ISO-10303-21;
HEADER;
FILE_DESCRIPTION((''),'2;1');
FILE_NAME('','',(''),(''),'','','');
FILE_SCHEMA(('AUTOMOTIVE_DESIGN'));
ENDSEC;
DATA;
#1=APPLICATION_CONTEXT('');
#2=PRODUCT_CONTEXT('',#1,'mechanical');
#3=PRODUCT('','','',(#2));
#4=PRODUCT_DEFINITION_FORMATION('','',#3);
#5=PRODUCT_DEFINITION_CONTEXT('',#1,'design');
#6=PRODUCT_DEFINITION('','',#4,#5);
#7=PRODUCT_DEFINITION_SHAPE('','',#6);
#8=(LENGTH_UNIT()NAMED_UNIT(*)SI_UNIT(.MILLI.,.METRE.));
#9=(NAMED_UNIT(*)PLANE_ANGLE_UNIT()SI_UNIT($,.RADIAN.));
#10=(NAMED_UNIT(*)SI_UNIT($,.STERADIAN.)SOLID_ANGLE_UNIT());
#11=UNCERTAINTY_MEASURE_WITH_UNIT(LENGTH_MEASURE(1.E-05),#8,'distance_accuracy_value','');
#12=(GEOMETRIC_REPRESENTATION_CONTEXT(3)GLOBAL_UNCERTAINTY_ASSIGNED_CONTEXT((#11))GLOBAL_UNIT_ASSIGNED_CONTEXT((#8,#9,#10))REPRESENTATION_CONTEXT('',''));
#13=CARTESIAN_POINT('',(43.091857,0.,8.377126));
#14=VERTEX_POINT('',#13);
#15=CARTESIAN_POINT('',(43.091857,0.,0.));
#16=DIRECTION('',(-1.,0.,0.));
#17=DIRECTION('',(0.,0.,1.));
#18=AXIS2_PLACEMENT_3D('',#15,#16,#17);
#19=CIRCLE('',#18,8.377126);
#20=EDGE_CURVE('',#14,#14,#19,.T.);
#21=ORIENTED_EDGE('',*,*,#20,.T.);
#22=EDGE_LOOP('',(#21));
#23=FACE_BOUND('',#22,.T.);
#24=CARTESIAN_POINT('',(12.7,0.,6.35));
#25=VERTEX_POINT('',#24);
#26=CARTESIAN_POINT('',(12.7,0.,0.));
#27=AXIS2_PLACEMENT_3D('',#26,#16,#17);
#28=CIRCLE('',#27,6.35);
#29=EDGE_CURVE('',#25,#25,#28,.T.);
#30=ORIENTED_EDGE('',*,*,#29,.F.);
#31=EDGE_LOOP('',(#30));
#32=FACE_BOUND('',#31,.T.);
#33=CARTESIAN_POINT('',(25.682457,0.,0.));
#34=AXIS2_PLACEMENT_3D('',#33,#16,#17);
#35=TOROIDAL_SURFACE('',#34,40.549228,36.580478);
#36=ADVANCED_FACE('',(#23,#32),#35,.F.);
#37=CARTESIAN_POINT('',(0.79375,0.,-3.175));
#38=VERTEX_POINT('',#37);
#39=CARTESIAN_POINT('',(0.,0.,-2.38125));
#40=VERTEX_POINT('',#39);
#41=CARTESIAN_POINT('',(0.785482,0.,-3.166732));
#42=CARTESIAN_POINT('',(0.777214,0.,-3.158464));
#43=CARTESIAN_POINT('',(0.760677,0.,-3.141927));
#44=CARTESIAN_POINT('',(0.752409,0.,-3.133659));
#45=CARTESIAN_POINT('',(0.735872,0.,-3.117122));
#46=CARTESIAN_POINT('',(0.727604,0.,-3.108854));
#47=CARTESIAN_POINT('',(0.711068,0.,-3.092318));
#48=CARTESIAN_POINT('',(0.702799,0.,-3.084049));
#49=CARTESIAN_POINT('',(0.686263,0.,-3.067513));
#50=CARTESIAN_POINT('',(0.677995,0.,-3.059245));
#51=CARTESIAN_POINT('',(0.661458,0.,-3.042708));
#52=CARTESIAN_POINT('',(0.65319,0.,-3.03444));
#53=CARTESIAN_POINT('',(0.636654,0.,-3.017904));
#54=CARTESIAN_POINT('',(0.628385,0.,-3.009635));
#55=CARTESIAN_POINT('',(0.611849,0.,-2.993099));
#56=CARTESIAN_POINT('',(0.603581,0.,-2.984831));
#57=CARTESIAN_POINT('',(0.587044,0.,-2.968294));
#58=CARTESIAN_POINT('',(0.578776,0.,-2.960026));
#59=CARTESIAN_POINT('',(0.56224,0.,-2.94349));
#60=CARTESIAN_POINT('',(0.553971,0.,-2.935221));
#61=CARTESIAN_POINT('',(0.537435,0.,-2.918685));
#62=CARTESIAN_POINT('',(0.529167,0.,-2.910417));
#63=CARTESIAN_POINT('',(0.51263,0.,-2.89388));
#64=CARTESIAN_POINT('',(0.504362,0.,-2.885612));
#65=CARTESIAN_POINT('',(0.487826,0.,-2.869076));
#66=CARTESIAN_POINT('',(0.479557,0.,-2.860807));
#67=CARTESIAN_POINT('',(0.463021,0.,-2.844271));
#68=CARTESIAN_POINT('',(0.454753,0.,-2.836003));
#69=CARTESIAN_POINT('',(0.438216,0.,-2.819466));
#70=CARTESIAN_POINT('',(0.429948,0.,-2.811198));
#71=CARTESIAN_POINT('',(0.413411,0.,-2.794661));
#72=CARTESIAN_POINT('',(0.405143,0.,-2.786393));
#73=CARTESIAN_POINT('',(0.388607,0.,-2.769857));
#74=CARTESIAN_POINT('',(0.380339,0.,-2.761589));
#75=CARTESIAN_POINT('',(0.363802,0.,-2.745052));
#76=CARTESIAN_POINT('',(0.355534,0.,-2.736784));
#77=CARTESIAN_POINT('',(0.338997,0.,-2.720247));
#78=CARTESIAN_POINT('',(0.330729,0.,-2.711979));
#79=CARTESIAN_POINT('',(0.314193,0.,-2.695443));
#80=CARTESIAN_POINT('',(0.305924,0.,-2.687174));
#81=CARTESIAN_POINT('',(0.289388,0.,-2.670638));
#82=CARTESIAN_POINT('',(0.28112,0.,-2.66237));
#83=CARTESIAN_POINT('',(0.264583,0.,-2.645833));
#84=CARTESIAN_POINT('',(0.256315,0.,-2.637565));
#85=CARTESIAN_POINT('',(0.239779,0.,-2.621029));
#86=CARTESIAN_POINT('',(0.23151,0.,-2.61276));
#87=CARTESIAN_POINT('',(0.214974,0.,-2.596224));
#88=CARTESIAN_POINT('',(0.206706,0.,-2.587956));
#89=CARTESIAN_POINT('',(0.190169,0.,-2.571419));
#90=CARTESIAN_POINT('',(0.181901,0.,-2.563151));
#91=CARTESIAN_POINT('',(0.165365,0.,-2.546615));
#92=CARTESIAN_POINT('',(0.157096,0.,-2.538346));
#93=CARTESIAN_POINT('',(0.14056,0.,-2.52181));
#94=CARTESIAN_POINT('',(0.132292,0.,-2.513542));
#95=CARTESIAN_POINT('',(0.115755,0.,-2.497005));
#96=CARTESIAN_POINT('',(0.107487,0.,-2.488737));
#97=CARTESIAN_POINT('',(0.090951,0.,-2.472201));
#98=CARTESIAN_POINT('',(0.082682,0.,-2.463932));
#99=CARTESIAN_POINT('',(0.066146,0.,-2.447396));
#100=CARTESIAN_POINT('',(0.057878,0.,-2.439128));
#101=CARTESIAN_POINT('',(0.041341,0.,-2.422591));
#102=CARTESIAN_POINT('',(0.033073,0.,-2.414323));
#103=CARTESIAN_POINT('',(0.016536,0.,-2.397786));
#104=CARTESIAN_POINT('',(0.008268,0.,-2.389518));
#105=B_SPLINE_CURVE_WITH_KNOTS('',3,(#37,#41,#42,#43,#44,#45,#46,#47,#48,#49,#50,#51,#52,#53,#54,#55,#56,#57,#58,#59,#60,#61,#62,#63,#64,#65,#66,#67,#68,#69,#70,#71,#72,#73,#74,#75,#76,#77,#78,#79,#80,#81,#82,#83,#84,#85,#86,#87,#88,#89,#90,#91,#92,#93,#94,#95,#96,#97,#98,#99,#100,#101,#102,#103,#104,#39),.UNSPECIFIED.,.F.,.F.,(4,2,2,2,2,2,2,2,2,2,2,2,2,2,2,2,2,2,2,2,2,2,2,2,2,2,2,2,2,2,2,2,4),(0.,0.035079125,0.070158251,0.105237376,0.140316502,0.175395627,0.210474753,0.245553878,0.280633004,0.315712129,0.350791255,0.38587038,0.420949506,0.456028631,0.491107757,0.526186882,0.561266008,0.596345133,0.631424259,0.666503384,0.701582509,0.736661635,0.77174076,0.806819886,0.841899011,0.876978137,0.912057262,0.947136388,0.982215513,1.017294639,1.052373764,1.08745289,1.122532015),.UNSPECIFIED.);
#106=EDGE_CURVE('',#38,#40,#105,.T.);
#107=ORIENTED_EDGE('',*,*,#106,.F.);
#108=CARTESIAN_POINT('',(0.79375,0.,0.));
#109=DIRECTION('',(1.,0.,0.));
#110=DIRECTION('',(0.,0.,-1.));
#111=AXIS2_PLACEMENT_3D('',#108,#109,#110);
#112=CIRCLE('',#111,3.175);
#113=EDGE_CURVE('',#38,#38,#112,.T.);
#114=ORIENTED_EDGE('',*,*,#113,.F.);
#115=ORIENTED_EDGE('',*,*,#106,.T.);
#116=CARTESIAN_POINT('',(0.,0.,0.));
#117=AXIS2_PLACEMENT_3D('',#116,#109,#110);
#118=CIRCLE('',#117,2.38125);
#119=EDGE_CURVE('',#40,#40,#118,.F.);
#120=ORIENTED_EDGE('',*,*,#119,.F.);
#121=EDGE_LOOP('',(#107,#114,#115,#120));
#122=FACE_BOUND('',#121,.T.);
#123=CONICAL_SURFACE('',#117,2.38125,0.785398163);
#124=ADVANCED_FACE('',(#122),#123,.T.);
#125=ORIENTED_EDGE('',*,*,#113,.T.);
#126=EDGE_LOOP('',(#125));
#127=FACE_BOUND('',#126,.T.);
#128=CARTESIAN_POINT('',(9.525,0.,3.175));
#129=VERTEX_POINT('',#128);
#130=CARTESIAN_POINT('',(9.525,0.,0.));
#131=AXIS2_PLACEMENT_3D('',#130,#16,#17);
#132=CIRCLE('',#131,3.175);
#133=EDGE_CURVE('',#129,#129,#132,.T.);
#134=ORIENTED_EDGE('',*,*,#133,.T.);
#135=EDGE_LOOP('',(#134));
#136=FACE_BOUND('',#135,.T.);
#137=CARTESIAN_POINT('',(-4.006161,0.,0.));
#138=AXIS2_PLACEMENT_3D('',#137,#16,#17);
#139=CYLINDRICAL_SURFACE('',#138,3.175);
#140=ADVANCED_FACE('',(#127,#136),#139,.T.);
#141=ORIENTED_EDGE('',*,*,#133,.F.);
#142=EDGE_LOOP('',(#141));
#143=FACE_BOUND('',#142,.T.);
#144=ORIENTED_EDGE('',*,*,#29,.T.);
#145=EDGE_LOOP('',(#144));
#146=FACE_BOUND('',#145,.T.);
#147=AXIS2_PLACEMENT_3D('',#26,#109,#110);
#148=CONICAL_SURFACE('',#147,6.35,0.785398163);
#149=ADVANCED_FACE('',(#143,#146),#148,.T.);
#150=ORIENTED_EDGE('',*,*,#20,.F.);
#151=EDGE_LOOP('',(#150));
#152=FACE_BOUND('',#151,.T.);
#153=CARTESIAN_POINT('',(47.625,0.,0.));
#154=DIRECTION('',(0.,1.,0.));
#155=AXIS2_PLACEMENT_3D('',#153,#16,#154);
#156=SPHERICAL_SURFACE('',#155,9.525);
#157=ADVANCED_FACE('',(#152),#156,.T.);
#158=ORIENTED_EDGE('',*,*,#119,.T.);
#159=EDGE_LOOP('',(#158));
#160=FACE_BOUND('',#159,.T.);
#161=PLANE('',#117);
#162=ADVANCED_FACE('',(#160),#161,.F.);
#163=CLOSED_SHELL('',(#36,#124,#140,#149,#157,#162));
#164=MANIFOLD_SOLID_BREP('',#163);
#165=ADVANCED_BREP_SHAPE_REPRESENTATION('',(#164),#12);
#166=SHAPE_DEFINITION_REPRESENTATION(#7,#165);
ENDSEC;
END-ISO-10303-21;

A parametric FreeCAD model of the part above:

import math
import FreeCAD as App
import Part
import Sketcher

V = App.Vector
Q = App.Units.Quantity


def edges_at(feature, points):
    """Names of the edges that pass closest to the given points."""
    edges = feature.Shape.Edges
    near = lambda p: min(range(len(edges)), key=lambda i: edges[i].distToShape(Part.Vertex(*p))[0])
    return sorted({f"Edge{near(p) + 1}" for p in points})

doc = App.newDocument("Part")
body = doc.addObject("PartDesign::Body", "Body")

sketch1 = body.newObject("Sketcher::SketchObject", "Sketch")
sketch1.AttachmentSupport = (doc.getObject("XY_Plane"), [""])
sketch1.MapMode = "FlatFace"
sketch1.addGeometry([
    Part.LineSegment(V(0, 3.175, 0), V(0, 0, 0)),
    Part.LineSegment(V(0, 0, 0), V(57.15, 0, 0)),
    Part.ArcOfCircle(Part.Circle(V(47.625, 0, 0), V(0, 0, 1), 9.525), math.radians(0), math.radians(118.419302)),
    Part.ArcOfCircle(Part.Circle(V(25.682457, 40.549228, 0), V(0, 0, 1), 36.580478), math.radians(-110.787391), math.radians(-61.580698)),
    Part.LineSegment(V(12.7, 6.35, 0), V(9.525, 3.175, 0)),
    Part.LineSegment(V(9.525, 3.175, 0), V(0, 3.175, 0)),
], False)
sketch1.addConstraint([
    Sketcher.Constraint("Coincident", 0, 2, 1, 1),
    Sketcher.Constraint("Coincident", 1, 2, 2, 1),
    Sketcher.Constraint("Tangent", 2, 2, 3, 2),
    Sketcher.Constraint("Coincident", 3, 1, 4, 1),
    Sketcher.Constraint("Coincident", 4, 2, 5, 1),
    Sketcher.Constraint("Coincident", 5, 2, 0, 1),
    Sketcher.Constraint("Vertical", 0),
    Sketcher.Constraint("Horizontal", 1),
    Sketcher.Constraint("Horizontal", 5),
    Sketcher.Constraint("Coincident", 0, 2, -1, 1),
    Sketcher.Constraint("PointOnObject", 2, 3, -1),
    Sketcher.Constraint("Angle", 4, Q("-135 deg")),
    Sketcher.Constraint("Radius", 2, Q("0.375 in")),
    Sketcher.Constraint("DistanceX", 1, 1, 1, 2, Q("2.25 in")),
    Sketcher.Constraint("DistanceX", -1, 1, 3, 1, Q("0.5 in")),
    Sketcher.Constraint("DistanceX", 4, 2, 2, 3, Q("1.5 in")),
    Sketcher.Constraint("DistanceY", 0, 2, 0, 1, Q("0.125 in")),
    Sketcher.Constraint("Radius", 3, Q("36.580478 mm")),
])
revolution = body.newObject("PartDesign::Revolution", "Revolution")
revolution.Profile = sketch1
revolution.ReferenceAxis = (sketch1, ["H_Axis"])
revolution.Angle = 360
doc.recompute()

chamfer = body.newObject("PartDesign::Chamfer", "Chamfer")
chamfer.Base = (revolution, edges_at(revolution, [(0, 0, -3.175)]))
chamfer.Size = Q("0.03125 in")

doc.recompute()
